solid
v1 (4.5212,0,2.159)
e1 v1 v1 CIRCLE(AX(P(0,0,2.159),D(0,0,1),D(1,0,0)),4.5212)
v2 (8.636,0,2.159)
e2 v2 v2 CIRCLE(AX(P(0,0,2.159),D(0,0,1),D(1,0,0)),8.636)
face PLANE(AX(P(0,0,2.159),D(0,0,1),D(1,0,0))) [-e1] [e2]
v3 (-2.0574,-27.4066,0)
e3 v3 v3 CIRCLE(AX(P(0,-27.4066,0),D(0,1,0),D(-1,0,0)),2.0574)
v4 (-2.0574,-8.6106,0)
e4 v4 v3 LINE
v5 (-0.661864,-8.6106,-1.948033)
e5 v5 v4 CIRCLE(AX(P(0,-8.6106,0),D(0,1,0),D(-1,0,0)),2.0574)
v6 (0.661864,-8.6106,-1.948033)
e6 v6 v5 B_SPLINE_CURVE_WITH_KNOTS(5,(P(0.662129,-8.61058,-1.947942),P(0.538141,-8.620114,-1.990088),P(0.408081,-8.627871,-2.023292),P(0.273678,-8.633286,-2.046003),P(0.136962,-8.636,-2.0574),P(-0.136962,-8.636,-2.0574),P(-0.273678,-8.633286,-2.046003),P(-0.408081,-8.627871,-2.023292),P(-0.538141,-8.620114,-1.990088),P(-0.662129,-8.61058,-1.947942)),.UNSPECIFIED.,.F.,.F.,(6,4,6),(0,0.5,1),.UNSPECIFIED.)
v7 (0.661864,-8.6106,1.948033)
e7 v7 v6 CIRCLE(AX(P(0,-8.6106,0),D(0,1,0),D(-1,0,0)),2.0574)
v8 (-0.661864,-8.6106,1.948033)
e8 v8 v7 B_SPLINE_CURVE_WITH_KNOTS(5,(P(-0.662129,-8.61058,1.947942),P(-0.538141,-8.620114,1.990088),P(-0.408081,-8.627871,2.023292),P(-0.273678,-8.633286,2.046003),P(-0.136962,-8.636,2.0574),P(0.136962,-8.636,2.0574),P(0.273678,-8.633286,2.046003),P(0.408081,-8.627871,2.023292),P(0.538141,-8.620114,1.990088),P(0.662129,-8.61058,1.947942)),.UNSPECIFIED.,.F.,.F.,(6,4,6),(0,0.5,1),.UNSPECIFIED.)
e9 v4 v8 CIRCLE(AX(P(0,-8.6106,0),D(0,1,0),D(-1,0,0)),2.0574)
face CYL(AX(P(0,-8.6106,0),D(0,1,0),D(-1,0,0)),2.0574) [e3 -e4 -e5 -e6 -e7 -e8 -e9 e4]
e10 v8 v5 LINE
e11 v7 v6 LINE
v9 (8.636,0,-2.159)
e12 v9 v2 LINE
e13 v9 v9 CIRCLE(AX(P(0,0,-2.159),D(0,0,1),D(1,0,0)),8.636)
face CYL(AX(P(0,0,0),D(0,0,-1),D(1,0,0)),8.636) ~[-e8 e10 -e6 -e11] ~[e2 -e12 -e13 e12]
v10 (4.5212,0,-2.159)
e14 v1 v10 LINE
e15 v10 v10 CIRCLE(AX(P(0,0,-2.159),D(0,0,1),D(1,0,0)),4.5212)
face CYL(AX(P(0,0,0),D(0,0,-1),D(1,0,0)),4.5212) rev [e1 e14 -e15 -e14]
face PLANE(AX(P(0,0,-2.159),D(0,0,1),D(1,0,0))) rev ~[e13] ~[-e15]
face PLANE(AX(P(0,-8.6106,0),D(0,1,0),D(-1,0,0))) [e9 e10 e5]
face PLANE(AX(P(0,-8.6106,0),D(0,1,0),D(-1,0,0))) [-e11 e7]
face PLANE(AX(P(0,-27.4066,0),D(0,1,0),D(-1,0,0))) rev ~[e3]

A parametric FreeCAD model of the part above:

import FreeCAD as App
import Part
import Sketcher
from FreeCAD import Vector
Q = App.Units.Quantity

doc = App.newDocument("Part")
body = doc.addObject("PartDesign::Body", "Body")

# Sketch on XY plane
sketch1 = body.newObject("Sketcher::SketchObject", "Sketch")
sketch1.AttachmentSupport = (doc.getObject("XY_Plane"), [""])
sketch1.MapMode = "FlatFace"
sketch1.addGeometry([
    Part.Circle(Vector(0, 0, 0), Vector(0, 0, 1), 8.6),
    Part.Circle(Vector(0, 0, 0), Vector(0, 0, 1), 4.5),
], False)
sketch1.addConstraint([
    Sketcher.Constraint("Coincident", 0, 3, -1, 1),
    Sketcher.Constraint("Coincident", 1, 3, -1, 1),
    Sketcher.Constraint("Diameter", 0, Q("0.68 in")),
    Sketcher.Constraint("Diameter", 1, Q("0.356 in")),
])
pad1 = body.newObject("PartDesign::Pad", "Pad")
pad1.Profile = sketch1
pad1.Length = Q("0.17 in")
pad1.Midplane = True

# Sketch on XZ plane
sketch2 = body.newObject("Sketcher::SketchObject", "Sketch001")
sketch2.AttachmentSupport = (doc.getObject("XZ_Plane"), [""])
sketch2.MapMode = "FlatFace"
sketch2.AttachmentOffset = App.Placement(Vector(0, 0, 0.339 * 25.4), App.Rotation())
sketch2.addGeometry(Part.Circle(Vector(0, 0, 0), Vector(0, 0, 1), 2.1), False)
sketch2.addConstraint([
    Sketcher.Constraint("Coincident", 0, 3, -1, 1),
    Sketcher.Constraint("Diameter", 0, Q("0.162 in")),
])
pad2 = body.newObject("PartDesign::Pad", "Pad001")
pad2.Profile = sketch2
pad2.Length = Q("0.74 in")

doc.recompute()
